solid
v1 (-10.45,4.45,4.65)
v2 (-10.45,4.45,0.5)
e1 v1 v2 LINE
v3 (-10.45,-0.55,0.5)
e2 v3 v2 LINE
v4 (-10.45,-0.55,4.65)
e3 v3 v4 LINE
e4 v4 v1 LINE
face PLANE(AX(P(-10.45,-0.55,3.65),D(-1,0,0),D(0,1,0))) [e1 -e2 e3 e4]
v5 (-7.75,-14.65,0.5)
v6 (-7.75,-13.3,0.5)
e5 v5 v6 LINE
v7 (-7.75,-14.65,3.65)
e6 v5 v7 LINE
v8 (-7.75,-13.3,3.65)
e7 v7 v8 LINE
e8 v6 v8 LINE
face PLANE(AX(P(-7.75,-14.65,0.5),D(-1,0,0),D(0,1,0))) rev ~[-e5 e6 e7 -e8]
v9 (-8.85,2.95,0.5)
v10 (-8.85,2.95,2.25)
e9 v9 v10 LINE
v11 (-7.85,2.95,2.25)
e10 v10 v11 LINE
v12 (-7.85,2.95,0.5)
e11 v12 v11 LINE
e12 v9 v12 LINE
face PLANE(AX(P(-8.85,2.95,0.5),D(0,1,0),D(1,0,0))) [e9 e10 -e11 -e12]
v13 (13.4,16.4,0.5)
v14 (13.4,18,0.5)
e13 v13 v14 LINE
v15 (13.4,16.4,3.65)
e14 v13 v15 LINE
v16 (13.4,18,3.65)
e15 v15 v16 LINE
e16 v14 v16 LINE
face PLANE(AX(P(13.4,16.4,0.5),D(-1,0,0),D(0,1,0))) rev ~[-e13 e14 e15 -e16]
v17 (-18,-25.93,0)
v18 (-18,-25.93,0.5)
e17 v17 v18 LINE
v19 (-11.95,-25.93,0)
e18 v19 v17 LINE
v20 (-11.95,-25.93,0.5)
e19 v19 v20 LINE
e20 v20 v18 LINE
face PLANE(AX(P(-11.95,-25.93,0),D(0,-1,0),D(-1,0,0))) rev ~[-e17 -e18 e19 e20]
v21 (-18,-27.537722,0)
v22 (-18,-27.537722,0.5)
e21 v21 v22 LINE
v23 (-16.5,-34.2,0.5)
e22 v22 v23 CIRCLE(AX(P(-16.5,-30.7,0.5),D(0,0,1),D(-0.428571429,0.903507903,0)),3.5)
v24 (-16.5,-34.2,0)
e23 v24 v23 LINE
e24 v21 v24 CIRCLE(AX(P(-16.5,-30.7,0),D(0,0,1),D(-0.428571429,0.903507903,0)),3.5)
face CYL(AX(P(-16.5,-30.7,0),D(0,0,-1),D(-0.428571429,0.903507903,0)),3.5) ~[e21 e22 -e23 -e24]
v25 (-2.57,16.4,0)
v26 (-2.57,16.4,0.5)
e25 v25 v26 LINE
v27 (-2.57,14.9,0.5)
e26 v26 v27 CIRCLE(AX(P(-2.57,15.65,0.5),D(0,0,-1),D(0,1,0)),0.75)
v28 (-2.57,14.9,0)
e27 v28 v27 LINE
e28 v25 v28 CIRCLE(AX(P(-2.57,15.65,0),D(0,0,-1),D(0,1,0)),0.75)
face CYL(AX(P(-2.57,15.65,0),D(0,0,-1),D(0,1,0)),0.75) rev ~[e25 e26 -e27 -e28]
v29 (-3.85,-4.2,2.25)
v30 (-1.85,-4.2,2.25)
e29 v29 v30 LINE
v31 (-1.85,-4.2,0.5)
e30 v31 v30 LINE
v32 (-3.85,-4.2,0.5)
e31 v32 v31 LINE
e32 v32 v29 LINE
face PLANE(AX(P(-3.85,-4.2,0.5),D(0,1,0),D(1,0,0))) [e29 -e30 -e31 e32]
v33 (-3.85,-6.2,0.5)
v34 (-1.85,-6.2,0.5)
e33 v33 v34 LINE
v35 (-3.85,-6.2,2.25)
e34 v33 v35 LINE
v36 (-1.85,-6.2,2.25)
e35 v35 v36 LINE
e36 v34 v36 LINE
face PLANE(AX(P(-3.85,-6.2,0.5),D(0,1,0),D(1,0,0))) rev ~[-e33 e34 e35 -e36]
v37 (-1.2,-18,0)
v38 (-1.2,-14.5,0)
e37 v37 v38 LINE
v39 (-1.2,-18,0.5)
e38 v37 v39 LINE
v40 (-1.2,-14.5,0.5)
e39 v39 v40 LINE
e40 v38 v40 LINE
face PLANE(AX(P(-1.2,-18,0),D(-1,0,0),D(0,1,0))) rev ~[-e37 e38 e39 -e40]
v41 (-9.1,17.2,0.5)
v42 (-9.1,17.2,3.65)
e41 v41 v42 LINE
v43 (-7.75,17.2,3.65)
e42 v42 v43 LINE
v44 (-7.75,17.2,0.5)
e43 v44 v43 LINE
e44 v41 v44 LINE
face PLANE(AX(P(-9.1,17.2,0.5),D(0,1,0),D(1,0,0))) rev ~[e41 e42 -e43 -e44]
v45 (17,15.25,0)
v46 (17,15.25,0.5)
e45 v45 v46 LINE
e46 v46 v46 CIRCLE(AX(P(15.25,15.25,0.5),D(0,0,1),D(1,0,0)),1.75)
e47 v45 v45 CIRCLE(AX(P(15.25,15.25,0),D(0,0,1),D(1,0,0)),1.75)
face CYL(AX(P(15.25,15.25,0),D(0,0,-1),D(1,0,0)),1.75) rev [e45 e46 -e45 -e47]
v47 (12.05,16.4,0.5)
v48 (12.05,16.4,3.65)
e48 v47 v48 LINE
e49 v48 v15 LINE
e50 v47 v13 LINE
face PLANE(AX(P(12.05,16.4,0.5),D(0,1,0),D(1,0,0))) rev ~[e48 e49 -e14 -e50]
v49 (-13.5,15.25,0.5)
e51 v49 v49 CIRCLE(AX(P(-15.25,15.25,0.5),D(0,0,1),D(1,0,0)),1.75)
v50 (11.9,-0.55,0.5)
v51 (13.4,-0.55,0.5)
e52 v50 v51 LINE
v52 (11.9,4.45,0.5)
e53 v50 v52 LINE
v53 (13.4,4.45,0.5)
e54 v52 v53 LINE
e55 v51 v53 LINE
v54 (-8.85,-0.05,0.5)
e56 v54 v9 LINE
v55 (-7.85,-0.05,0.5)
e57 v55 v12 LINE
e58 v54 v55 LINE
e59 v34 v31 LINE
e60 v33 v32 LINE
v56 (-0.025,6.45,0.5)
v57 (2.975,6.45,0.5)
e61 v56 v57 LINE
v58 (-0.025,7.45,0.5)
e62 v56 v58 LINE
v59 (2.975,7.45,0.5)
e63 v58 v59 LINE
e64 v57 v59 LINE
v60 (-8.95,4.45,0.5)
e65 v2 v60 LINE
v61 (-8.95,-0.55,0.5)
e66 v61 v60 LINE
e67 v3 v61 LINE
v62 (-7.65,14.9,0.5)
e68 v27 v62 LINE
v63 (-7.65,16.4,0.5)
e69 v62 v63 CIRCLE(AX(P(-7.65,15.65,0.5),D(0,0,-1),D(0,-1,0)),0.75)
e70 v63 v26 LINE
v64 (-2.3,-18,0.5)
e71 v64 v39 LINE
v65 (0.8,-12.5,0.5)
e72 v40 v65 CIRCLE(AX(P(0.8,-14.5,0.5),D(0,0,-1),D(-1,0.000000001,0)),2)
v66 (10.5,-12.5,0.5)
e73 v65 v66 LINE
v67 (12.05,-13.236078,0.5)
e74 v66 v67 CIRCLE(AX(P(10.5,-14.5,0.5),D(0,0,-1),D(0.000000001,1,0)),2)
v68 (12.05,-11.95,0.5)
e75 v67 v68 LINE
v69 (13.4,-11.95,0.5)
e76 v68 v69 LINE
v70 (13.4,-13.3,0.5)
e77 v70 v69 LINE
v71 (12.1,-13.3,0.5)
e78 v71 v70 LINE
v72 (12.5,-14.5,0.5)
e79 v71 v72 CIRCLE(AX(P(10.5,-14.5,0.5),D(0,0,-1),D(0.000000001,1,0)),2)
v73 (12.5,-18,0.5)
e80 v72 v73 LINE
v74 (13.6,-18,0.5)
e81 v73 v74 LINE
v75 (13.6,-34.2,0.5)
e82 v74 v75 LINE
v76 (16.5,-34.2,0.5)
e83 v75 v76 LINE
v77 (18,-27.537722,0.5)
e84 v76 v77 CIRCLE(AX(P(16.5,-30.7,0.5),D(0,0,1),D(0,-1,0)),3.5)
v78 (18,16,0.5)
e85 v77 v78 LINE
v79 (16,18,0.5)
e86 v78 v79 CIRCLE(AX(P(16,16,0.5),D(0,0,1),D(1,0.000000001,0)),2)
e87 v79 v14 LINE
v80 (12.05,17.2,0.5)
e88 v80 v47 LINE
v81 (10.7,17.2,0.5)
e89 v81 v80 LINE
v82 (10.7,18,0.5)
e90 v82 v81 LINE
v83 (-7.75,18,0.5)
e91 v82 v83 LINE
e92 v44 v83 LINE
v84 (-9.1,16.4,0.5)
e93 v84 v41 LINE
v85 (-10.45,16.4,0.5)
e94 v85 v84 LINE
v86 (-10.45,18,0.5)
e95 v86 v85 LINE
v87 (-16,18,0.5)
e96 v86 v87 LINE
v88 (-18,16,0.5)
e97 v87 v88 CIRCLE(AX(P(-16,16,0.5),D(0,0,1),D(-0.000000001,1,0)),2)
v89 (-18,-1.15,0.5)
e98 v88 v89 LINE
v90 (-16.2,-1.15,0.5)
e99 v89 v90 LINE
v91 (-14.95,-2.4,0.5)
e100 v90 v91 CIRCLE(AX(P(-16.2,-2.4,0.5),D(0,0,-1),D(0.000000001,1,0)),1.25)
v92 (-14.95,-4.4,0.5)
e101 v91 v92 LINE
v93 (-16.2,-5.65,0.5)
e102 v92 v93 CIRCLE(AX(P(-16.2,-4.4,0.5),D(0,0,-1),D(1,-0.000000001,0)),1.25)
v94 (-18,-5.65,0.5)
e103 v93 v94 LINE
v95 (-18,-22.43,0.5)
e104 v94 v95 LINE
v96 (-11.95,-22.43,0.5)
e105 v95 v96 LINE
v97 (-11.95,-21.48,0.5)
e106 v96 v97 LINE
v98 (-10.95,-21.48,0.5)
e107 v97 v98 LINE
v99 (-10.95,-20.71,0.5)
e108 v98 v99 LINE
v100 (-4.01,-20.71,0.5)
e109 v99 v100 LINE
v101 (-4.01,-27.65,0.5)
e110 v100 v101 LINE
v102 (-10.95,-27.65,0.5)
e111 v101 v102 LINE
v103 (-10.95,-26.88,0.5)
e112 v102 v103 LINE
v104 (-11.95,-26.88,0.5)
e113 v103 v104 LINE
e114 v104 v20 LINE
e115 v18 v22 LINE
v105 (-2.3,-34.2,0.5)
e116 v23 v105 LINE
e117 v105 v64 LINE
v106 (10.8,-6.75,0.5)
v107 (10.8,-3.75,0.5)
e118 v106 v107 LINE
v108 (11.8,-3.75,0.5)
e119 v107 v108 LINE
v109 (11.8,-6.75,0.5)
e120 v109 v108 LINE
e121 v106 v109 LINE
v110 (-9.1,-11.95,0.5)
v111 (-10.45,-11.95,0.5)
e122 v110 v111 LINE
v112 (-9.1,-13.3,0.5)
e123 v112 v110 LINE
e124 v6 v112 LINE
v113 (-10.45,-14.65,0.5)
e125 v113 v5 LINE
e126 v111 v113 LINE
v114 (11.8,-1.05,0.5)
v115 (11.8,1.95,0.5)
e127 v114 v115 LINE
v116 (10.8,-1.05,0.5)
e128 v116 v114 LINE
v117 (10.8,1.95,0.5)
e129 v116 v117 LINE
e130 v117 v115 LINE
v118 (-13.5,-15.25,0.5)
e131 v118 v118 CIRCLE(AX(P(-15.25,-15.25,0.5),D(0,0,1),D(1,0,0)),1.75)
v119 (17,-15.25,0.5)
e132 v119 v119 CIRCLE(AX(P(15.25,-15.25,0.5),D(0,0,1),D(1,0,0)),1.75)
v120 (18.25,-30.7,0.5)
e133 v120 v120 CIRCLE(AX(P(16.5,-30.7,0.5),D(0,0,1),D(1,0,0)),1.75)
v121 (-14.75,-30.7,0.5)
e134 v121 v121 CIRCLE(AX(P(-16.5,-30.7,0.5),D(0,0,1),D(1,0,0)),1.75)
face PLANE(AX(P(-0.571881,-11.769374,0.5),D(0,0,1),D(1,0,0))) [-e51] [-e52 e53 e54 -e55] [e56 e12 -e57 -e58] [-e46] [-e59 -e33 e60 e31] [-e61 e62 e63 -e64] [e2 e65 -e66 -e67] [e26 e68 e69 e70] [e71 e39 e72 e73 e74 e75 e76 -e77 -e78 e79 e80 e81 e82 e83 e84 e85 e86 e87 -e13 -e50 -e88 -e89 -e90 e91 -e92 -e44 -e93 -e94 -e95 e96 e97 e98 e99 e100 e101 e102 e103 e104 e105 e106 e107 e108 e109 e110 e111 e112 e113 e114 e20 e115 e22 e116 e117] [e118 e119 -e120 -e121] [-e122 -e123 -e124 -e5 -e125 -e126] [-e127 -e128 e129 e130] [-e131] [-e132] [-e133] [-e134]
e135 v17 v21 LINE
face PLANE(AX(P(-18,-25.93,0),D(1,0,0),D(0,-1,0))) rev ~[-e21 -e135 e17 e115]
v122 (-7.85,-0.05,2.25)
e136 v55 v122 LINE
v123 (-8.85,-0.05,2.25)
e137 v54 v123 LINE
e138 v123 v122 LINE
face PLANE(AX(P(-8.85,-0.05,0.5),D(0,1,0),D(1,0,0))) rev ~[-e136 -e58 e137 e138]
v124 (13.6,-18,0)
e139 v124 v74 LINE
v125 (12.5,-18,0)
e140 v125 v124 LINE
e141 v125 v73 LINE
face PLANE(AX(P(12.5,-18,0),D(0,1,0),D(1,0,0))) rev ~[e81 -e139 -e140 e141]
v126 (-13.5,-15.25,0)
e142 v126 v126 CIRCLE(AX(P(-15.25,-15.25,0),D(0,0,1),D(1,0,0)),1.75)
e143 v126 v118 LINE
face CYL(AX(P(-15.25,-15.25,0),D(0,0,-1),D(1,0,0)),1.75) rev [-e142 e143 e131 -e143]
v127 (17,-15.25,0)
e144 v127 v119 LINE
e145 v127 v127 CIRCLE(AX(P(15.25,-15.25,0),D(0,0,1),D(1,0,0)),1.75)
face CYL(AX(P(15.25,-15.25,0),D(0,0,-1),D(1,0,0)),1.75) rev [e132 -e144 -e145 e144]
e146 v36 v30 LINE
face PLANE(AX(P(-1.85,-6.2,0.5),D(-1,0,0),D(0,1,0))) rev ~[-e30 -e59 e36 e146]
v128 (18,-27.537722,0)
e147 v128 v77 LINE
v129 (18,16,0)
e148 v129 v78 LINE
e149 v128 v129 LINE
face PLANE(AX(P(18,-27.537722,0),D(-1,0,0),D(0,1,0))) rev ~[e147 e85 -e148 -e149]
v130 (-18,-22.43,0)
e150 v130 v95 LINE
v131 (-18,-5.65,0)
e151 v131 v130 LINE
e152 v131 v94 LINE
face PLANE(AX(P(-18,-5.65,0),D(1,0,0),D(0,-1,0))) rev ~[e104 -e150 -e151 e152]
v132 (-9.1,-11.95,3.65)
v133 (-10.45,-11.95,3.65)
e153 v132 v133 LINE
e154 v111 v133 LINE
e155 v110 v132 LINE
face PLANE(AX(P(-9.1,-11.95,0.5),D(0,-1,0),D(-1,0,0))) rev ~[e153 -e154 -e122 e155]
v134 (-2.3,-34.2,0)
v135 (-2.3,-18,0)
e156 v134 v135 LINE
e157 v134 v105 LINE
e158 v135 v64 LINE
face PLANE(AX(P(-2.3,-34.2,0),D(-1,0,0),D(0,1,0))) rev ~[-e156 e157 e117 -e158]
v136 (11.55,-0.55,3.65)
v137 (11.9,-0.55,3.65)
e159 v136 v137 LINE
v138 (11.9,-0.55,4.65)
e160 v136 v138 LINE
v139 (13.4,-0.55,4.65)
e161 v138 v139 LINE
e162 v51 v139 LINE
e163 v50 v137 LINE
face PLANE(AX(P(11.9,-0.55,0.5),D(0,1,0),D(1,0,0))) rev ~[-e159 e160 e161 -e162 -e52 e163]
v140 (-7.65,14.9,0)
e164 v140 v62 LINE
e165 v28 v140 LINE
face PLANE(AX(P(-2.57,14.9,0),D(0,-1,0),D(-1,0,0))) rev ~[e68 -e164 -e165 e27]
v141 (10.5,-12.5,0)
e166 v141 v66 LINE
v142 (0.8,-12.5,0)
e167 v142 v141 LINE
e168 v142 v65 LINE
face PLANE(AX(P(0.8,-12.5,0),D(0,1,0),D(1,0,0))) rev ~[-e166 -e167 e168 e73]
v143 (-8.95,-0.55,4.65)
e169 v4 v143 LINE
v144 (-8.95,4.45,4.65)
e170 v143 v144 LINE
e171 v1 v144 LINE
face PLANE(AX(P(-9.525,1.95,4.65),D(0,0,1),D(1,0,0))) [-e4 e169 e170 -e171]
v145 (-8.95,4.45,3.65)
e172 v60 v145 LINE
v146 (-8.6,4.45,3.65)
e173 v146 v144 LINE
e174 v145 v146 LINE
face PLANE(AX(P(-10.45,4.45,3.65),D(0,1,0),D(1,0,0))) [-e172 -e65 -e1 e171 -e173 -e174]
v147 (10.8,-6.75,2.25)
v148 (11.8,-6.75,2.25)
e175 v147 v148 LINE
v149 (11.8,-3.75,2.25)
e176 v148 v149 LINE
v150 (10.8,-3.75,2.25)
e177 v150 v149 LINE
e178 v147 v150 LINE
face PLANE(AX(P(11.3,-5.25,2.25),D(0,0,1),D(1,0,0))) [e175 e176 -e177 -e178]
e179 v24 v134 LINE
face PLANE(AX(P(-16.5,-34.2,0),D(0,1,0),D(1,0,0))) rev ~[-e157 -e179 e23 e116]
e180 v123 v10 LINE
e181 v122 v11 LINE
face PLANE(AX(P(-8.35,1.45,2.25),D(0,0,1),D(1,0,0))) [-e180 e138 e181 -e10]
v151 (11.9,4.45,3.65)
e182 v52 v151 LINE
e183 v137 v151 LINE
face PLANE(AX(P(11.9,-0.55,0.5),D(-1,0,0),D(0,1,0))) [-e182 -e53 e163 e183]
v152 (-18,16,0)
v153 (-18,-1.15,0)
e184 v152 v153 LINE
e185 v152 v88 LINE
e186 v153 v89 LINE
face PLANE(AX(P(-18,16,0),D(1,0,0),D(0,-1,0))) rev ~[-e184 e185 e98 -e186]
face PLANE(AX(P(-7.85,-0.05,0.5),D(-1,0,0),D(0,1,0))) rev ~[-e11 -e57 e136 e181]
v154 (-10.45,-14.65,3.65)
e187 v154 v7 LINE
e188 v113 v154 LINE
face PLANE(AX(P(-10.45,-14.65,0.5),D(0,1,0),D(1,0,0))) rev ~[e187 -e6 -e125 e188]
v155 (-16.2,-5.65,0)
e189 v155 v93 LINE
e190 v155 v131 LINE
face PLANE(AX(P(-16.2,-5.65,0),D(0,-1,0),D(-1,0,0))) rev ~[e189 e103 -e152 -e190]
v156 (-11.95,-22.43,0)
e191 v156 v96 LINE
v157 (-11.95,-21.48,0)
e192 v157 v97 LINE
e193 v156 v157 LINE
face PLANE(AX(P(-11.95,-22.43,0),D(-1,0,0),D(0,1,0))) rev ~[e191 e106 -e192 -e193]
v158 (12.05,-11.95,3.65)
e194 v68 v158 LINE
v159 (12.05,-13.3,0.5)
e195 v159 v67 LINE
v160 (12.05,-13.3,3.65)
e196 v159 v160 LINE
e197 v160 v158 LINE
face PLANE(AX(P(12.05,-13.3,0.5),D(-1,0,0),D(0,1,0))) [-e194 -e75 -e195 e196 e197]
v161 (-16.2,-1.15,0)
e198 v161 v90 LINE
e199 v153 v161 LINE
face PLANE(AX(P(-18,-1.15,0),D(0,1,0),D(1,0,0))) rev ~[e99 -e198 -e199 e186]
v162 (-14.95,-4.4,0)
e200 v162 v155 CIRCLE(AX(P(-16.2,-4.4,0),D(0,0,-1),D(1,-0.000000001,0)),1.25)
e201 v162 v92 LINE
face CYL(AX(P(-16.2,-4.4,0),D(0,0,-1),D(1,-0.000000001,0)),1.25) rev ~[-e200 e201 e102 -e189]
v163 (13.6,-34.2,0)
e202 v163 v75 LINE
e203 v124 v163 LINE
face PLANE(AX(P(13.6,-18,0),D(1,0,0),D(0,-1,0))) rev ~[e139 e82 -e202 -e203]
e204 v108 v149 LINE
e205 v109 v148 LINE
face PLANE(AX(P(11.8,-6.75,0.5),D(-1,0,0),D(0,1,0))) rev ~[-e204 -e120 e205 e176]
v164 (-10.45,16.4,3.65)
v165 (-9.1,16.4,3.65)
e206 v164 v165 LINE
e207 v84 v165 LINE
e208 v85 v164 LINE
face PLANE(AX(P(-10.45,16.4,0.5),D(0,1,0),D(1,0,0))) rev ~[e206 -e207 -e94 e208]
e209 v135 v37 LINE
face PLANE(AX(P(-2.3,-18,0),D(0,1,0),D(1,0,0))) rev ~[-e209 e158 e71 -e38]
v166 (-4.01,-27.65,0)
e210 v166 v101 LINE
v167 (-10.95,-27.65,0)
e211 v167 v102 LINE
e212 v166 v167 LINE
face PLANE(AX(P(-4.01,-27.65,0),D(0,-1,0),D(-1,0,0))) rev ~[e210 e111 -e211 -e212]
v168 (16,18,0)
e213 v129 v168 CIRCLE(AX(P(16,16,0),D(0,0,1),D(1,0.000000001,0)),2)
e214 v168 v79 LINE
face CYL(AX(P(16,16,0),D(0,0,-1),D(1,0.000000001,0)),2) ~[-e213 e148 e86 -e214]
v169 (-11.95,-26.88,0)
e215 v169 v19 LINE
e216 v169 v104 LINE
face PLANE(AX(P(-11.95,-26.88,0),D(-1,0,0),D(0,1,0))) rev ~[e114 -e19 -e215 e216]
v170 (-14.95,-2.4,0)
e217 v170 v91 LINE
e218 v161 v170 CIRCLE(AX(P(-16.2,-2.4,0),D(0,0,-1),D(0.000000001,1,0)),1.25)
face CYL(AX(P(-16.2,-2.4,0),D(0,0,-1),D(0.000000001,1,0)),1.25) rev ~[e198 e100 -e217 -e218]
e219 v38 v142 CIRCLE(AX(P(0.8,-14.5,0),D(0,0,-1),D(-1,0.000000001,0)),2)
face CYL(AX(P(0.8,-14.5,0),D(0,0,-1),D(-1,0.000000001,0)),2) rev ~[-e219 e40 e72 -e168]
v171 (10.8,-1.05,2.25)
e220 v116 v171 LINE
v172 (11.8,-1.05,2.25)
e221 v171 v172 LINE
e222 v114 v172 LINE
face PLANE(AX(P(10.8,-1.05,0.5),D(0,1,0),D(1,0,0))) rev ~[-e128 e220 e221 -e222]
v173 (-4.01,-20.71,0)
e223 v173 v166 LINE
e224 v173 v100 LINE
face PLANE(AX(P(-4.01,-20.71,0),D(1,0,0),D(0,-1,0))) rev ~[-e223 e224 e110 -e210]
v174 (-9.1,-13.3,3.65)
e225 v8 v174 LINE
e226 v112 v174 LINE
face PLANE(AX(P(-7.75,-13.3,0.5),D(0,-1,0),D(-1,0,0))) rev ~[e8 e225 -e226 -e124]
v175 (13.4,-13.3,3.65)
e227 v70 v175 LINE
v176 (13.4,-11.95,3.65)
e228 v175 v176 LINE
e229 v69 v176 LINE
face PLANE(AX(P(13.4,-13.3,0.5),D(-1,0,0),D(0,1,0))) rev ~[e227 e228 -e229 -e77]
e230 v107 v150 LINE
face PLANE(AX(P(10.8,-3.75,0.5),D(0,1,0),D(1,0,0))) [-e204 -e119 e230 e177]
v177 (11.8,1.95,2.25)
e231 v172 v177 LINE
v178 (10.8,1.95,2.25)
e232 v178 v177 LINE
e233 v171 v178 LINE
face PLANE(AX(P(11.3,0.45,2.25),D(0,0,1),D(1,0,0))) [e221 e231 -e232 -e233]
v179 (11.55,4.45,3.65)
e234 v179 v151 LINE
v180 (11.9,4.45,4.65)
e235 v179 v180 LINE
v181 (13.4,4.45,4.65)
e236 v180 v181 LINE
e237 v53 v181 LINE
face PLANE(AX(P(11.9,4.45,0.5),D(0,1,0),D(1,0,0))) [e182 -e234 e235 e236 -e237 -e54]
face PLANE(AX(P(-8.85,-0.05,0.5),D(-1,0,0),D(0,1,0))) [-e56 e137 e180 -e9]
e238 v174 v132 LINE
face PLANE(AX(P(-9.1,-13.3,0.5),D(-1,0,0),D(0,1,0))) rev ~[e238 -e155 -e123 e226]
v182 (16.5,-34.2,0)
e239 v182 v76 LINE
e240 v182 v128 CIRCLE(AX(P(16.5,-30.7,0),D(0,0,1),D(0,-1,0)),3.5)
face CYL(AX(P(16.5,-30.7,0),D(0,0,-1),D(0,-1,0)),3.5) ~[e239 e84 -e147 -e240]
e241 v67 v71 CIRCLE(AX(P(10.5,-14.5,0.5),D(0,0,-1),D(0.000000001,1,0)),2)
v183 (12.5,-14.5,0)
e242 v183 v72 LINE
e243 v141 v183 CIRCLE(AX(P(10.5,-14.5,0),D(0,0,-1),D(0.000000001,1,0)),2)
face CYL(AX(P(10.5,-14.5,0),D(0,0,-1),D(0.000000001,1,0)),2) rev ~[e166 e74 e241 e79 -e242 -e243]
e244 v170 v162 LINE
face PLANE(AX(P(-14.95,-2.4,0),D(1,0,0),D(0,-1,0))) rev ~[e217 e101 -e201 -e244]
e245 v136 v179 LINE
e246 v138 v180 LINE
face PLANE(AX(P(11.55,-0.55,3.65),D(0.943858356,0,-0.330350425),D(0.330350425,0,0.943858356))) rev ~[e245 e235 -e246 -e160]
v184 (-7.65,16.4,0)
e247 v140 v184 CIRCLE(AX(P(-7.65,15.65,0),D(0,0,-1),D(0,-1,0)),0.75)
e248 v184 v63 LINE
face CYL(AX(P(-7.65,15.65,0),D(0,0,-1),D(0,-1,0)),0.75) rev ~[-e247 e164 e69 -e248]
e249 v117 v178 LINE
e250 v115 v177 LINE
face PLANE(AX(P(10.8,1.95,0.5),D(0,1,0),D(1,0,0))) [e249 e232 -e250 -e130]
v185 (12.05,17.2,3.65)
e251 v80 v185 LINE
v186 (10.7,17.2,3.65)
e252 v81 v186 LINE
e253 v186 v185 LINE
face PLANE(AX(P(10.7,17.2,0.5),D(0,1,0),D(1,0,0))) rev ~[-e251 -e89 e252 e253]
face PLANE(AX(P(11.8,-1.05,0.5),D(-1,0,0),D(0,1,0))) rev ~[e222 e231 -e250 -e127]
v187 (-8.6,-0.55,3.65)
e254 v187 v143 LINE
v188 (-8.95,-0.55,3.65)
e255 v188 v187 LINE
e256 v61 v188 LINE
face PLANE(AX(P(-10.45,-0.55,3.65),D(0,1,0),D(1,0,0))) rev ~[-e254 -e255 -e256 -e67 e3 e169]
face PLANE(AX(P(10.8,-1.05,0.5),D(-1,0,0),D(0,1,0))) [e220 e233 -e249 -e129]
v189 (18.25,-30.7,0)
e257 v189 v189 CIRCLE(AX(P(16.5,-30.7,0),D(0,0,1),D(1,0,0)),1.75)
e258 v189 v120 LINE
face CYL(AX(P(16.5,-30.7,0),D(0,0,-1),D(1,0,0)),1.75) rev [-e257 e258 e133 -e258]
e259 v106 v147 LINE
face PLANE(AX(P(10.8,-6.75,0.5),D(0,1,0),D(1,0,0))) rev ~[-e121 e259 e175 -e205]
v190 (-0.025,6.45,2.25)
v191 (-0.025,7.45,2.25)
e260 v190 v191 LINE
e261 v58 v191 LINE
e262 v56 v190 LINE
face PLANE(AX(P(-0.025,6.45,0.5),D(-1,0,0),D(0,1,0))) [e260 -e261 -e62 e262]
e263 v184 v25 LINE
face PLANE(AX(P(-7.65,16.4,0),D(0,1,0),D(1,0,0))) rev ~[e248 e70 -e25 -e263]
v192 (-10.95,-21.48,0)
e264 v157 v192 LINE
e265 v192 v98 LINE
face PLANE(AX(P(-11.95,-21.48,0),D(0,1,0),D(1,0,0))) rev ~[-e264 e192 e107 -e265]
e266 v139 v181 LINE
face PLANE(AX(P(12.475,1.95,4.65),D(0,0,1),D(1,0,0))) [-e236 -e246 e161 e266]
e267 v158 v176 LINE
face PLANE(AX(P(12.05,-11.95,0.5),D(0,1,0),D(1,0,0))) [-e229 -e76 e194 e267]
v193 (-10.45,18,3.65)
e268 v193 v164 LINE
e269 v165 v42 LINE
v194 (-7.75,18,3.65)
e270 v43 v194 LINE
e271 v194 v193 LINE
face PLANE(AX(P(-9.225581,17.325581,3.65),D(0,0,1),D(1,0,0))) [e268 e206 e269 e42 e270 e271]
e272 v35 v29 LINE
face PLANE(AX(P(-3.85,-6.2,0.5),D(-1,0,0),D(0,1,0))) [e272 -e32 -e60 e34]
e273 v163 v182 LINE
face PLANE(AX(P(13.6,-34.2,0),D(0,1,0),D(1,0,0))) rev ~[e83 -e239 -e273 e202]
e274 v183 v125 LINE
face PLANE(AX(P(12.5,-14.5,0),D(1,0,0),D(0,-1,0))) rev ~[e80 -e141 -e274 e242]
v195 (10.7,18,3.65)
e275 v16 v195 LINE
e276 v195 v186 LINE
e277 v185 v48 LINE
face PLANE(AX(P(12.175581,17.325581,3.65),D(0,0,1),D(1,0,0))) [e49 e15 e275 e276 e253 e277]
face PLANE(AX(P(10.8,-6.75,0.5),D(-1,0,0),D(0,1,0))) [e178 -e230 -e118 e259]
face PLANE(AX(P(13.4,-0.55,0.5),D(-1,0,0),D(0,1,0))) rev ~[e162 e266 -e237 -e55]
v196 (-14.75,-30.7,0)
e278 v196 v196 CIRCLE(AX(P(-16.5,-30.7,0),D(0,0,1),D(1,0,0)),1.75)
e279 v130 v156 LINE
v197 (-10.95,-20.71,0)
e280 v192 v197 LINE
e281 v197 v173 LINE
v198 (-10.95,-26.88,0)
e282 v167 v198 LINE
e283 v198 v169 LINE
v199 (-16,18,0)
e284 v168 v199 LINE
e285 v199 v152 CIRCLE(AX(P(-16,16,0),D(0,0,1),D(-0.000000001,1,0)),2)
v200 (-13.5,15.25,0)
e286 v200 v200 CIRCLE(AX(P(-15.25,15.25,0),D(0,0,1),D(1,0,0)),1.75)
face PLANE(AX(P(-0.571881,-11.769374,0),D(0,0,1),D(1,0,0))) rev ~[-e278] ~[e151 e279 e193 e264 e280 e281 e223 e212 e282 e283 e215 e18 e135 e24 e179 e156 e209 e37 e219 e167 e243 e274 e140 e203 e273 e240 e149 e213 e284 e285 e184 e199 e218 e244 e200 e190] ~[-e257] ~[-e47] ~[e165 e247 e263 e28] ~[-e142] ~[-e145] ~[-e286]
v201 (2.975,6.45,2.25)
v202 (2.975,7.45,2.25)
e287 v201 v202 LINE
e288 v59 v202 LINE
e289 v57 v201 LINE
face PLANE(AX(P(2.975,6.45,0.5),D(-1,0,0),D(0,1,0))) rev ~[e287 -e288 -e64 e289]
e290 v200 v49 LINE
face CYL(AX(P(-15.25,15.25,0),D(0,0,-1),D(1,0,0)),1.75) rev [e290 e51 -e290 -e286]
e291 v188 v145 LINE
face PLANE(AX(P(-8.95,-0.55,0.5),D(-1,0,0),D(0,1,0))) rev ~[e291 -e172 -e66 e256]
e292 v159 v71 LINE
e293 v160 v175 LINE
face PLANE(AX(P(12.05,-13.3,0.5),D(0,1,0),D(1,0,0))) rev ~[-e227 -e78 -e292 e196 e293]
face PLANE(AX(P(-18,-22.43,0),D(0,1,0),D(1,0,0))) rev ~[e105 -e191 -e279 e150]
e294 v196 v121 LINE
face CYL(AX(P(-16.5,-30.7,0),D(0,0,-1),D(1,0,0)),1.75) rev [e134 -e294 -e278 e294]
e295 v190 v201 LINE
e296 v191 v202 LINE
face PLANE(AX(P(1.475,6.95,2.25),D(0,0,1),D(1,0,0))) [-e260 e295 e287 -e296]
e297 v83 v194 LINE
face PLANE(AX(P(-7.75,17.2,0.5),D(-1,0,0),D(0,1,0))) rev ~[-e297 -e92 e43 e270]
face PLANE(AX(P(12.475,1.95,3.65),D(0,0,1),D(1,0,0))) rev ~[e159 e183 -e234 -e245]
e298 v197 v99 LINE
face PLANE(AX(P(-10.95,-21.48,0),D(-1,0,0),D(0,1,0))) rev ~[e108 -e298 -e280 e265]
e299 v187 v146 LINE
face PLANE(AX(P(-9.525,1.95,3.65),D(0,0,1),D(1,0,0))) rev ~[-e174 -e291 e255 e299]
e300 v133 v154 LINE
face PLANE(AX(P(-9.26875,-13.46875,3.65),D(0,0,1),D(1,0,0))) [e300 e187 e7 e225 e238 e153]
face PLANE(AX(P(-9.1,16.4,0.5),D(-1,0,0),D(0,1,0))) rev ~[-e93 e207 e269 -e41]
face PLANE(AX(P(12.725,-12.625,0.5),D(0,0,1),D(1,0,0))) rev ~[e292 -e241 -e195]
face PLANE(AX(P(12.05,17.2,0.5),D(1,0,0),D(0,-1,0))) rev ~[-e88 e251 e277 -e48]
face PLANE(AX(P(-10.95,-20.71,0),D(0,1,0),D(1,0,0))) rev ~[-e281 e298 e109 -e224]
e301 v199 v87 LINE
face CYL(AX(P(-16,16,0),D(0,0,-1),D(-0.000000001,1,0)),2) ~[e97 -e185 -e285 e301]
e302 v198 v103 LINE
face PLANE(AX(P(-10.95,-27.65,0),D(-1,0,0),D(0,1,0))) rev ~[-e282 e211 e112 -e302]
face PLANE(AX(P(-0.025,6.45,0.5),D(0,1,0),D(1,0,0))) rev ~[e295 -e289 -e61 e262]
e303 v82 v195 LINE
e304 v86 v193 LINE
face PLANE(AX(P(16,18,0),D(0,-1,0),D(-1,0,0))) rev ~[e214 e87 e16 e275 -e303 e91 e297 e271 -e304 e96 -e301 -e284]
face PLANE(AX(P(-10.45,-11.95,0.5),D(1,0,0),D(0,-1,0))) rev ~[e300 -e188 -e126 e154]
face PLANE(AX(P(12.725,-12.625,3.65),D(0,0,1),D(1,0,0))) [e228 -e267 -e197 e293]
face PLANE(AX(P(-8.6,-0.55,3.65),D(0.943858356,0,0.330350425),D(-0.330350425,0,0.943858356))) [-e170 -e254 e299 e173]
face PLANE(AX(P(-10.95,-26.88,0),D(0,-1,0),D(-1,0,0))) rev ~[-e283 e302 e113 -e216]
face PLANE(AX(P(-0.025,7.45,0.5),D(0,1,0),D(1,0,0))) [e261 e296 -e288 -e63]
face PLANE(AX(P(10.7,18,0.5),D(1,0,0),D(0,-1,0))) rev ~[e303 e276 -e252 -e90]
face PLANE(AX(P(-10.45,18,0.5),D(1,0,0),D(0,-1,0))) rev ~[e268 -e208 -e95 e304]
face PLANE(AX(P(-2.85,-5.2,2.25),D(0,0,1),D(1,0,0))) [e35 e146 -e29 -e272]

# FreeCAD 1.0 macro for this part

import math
import FreeCAD as App
import Part
import Sketcher
from FreeCAD import Vector
Q = App.Units.Quantity


def add_polygon(sketch, points):
    """Adds a closed chain of lines whose ends are joined by coincident constraints."""
    first, n = sketch.GeometryCount, len(points)
    for a, b in zip(points, points[1:] + points[:1]):
        sketch.addGeometry(Part.LineSegment(App.Vector(*a, 0), App.Vector(*b, 0)), False)
    for i in range(n):
        sketch.addConstraint(Sketcher.Constraint("Coincident", first + i, 2, first + (i + 1) % n, 1))

doc = App.newDocument("Part")
body = doc.addObject("PartDesign::Body", "Body")

# Sketch on XY plane
sketch1 = body.newObject("Sketcher::SketchObject", "Sketch")
sketch1.AttachmentSupport = (doc.getObject("XY_Plane"), [""])
sketch1.MapMode = "FlatFace"
sketch1.addGeometry([
    Part.LineSegment(Vector(18, -27.537722, 0), Vector(18, 16, 0)),  # 0
    Part.ArcOfCircle(Part.Circle(Vector(16, 16, 0), Vector(0, 0, 1), 2), math.radians(0), math.radians(90)),  # 1
    Part.LineSegment(Vector(16, 18, 0), Vector(-16, 18, 0)),  # 2
    Part.ArcOfCircle(Part.Circle(Vector(-16, 16, 0), Vector(0, 0, 1), 2), math.radians(90), math.radians(180)),  # 3
    Part.LineSegment(Vector(-18, 16, 0), Vector(-18, -1.15, 0)),  # 4
    Part.LineSegment(Vector(-18, -1.15, 0), Vector(-16.2, -1.15, 0)),  # 5
    Part.ArcOfCircle(Part.Circle(Vector(-16.2, -2.4, 0), Vector(0, 0, 1), 1.25), math.radians(0), math.radians(90)),  # 6
    Part.LineSegment(Vector(-14.95, -2.4, 0), Vector(-14.95, -4.4, 0)),  # 7
    Part.ArcOfCircle(Part.Circle(Vector(-16.2, -4.4, 0), Vector(0, 0, 1), 1.25), math.radians(-90), math.radians(0)),  # 8
    Part.LineSegment(Vector(-16.2, -5.65, 0), Vector(-18, -5.65, 0)),  # 9
    Part.LineSegment(Vector(-18, -5.65, 0), Vector(-18, -22.43, 0)),  # 10
    Part.LineSegment(Vector(-18, -22.43, 0), Vector(-11.95, -22.43, 0)),  # 11
    Part.LineSegment(Vector(-11.95, -22.43, 0), Vector(-11.95, -21.48, 0)),  # 12
    Part.LineSegment(Vector(-11.95, -21.48, 0), Vector(-10.95, -21.48, 0)),  # 13
    Part.LineSegment(Vector(-10.95, -21.48, 0), Vector(-10.95, -20.71, 0)),  # 14
    Part.LineSegment(Vector(-10.95, -20.71, 0), Vector(-4.01, -20.71, 0)),  # 15
    Part.LineSegment(Vector(-4.01, -20.71, 0), Vector(-4.01, -27.65, 0)),  # 16
    Part.LineSegment(Vector(-4.01, -27.65, 0), Vector(-10.95, -27.65, 0)),  # 17
    Part.LineSegment(Vector(-10.95, -27.65, 0), Vector(-10.95, -26.88, 0)),  # 18
    Part.LineSegment(Vector(-10.95, -26.88, 0), Vector(-11.95, -26.88, 0)),  # 19
    Part.LineSegment(Vector(-11.95, -26.88, 0), Vector(-11.95, -25.93, 0)),  # 20
    Part.LineSegment(Vector(-11.95, -25.93, 0), Vector(-18, -25.93, 0)),  # 21
    Part.LineSegment(Vector(-18, -25.93, 0), Vector(-18, -27.537722, 0)),  # 22
    Part.ArcOfCircle(Part.Circle(Vector(-16.5, -30.7, 0), Vector(0, 0, 1), 3.5), math.radians(115.376934), math.radians(270)),  # 23
    Part.LineSegment(Vector(-16.5, -34.2, 0), Vector(-2.3, -34.2, 0)),  # 24
    Part.LineSegment(Vector(-2.3, -34.2, 0), Vector(-2.3, -18, 0)),  # 25
    Part.LineSegment(Vector(-2.3, -18, 0), Vector(-1.2, -18, 0)),  # 26
    Part.LineSegment(Vector(-1.2, -18, 0), Vector(-1.2, -14.5, 0)),  # 27
    Part.ArcOfCircle(Part.Circle(Vector(0.8, -14.5, 0), Vector(0, 0, 1), 2), math.radians(90), math.radians(180)),  # 28
    Part.LineSegment(Vector(0.8, -12.5, 0), Vector(10.5, -12.5, 0)),  # 29
    Part.ArcOfCircle(Part.Circle(Vector(10.5, -14.5, 0), Vector(0, 0, 1), 2), math.radians(0), math.radians(90)),  # 30
    Part.LineSegment(Vector(12.5, -14.5, 0), Vector(12.5, -18, 0)),  # 31
    Part.LineSegment(Vector(12.5, -18, 0), Vector(13.6, -18, 0)),  # 32
    Part.LineSegment(Vector(13.6, -18, 0), Vector(13.6, -34.2, 0)),  # 33
    Part.LineSegment(Vector(13.6, -34.2, 0), Vector(16.5, -34.2, 0)),  # 34
    Part.ArcOfCircle(Part.Circle(Vector(16.5, -30.7, 0), Vector(0, 0, 1), 3.5), math.radians(-90), math.radians(64.623066)),  # 35
    Part.Circle(Vector(-16.5, -30.7, 0), Vector(0, 0, 1), 1.75),  # 36
    Part.Circle(Vector(-15.25, -15.25, 0), Vector(0, 0, 1), 1.75),  # 37
    Part.Circle(Vector(16.5, -30.7, 0), Vector(0, 0, 1), 1.75),  # 38
    Part.Circle(Vector(15.25, -15.25, 0), Vector(0, 0, 1), 1.75),  # 39
    Part.Circle(Vector(-15.25, 15.25, 0), Vector(0, 0, 1), 1.75),  # 40
    Part.LineSegment(Vector(-2.57, 14.9, 0), Vector(-7.65, 14.9, 0)),  # 41
    Part.ArcOfCircle(Part.Circle(Vector(-7.65, 15.65, 0), Vector(0, 0, 1), 0.75), math.radians(90), math.radians(270)),  # 42
    Part.LineSegment(Vector(-7.65, 16.4, 0), Vector(-2.57, 16.4, 0)),  # 43
    Part.ArcOfCircle(Part.Circle(Vector(-2.57, 15.65, 0), Vector(0, 0, 1), 0.75), math.radians(-90), math.radians(90)),  # 44
    Part.Circle(Vector(15.25, 15.25, 0), Vector(0, 0, 1), 1.75),  # 45
], False)
sketch1.addConstraint([
    Sketcher.Constraint("Tangent", 0, 2, 1, 1),
    Sketcher.Constraint("Tangent", 1, 2, 2, 1),
    Sketcher.Constraint("Tangent", 2, 2, 3, 1),
    Sketcher.Constraint("Tangent", 3, 2, 4, 1),
    Sketcher.Constraint("Coincident", 4, 2, 5, 1),
    Sketcher.Constraint("Tangent", 5, 2, 6, 2),
    Sketcher.Constraint("Tangent", 6, 1, 7, 1),
    Sketcher.Constraint("Tangent", 7, 2, 8, 2),
    Sketcher.Constraint("Tangent", 8, 1, 9, 1),
    Sketcher.Constraint("Coincident", 9, 2, 10, 1),
    Sketcher.Constraint("Coincident", 10, 2, 11, 1),
    Sketcher.Constraint("Coincident", 11, 2, 12, 1),
    Sketcher.Constraint("Coincident", 12, 2, 13, 1),
    Sketcher.Constraint("Coincident", 13, 2, 14, 1),
    Sketcher.Constraint("Coincident", 14, 2, 15, 1),
    Sketcher.Constraint("Coincident", 15, 2, 16, 1),
    Sketcher.Constraint("Coincident", 16, 2, 17, 1),
    Sketcher.Constraint("Coincident", 17, 2, 18, 1),
    Sketcher.Constraint("Coincident", 18, 2, 19, 1),
    Sketcher.Constraint("Coincident", 19, 2, 20, 1),
    Sketcher.Constraint("Coincident", 20, 2, 21, 1),
    Sketcher.Constraint("Coincident", 21, 2, 22, 1),
    Sketcher.Constraint("Coincident", 22, 2, 23, 1),
    Sketcher.Constraint("Tangent", 23, 2, 24, 1),
    Sketcher.Constraint("Coincident", 24, 2, 25, 1),
    Sketcher.Constraint("Coincident", 25, 2, 26, 1),
    Sketcher.Constraint("Coincident", 26, 2, 27, 1),
    Sketcher.Constraint("Tangent", 27, 2, 28, 2),
    Sketcher.Constraint("Tangent", 28, 1, 29, 1),
    Sketcher.Constraint("Tangent", 29, 2, 30, 2),
    Sketcher.Constraint("Tangent", 30, 1, 31, 1),
    Sketcher.Constraint("Coincident", 31, 2, 32, 1),
    Sketcher.Constraint("Coincident", 32, 2, 33, 1),
    Sketcher.Constraint("Coincident", 33, 2, 34, 1),
    Sketcher.Constraint("Tangent", 34, 2, 35, 1),
    Sketcher.Constraint("Coincident", 35, 2, 0, 1),
    Sketcher.Constraint("Tangent", 41, 2, 42, 2),
    Sketcher.Constraint("Tangent", 42, 1, 43, 1),
    Sketcher.Constraint("Tangent", 43, 2, 44, 2),
    Sketcher.Constraint("Tangent", 44, 1, 41, 1),
    Sketcher.Constraint("Vertical", 0),
    Sketcher.Constraint("Horizontal", 2),
    Sketcher.Constraint("Vertical", 4),
    Sketcher.Constraint("Horizontal", 5),
    Sketcher.Constraint("Vertical", 7),
    Sketcher.Constraint("Horizontal", 9),
    Sketcher.Constraint("Vertical", 10),
    Sketcher.Constraint("Horizontal", 11),
    Sketcher.Constraint("Vertical", 12),
    Sketcher.Constraint("Horizontal", 13),
    Sketcher.Constraint("Vertical", 14),
    Sketcher.Constraint("Horizontal", 15),
    Sketcher.Constraint("Vertical", 16),
    Sketcher.Constraint("Horizontal", 17),
    Sketcher.Constraint("Vertical", 18),
    Sketcher.Constraint("Horizontal", 19),
    Sketcher.Constraint("Vertical", 20),
    Sketcher.Constraint("Horizontal", 21),
    Sketcher.Constraint("Vertical", 22),
    Sketcher.Constraint("Horizontal", 24),
    Sketcher.Constraint("Vertical", 25),
    Sketcher.Constraint("Horizontal", 26),
    Sketcher.Constraint("Vertical", 27),
    Sketcher.Constraint("Horizontal", 29),
    Sketcher.Constraint("Vertical", 31),
    Sketcher.Constraint("Horizontal", 32),
    Sketcher.Constraint("Vertical", 33),
    Sketcher.Constraint("Horizontal", 34),
    Sketcher.Constraint("Horizontal", 41),
    Sketcher.Constraint("Horizontal", 43),
    Sketcher.Constraint("Coincident", 36, 3, 23, 3),
    Sketcher.Constraint("Coincident", 38, 3, 35, 3),
    Sketcher.Constraint("Equal", 1, 3),
    Sketcher.Constraint("Equal", 6, 8),
    Sketcher.Constraint("Equal", 3, 28),
    Sketcher.Constraint("Equal", 28, 30),
    Sketcher.Constraint("Equal", 23, 35),
    Sketcher.Constraint("Equal", 36, 37),
    Sketcher.Constraint("Equal", 37, 38),
    Sketcher.Constraint("Equal", 38, 39),
    Sketcher.Constraint("Equal", 39, 40),
    Sketcher.Constraint("Equal", 40, 45),
    Sketcher.Constraint("Symmetric", 39, 3, 40, 3, -1, 1),
    Sketcher.Constraint("Symmetric", 37, 3, 45, 3, -1, 1),
    Sketcher.Constraint("Symmetric", 23, 3, 35, 3, -2),
    Sketcher.Constraint("Symmetric", 37, 3, 39, 3, -2),
    Sketcher.Constraint("Horizontal", 26, 2, 31, 2),
    Sketcher.Constraint("Horizontal", 22, 2, 35, 2),
    Sketcher.Constraint("Vertical", 4, 2, 9, 2),
    Sketcher.Constraint("Vertical", 14, 2, 17, 2),
    Sketcher.Constraint("Vertical", 12, 2, 19, 2),
    Sketcher.Constraint("Vertical", 10, 2, 21, 2),
    Sketcher.Constraint("Equal", 26, 32),
    Sketcher.Constraint("Equal", 17, 16),
    Sketcher.Constraint("Equal", 14, 18),
    Sketcher.Constraint("Equal", 12, 20),
    Sketcher.Constraint("Radius", 1, Q("2 mm")),
    Sketcher.Constraint("Diameter", 36, Q("3.5 mm")),
    Sketcher.Constraint("Radius", 23, Q("3.5 mm")),
    Sketcher.Constraint("DistanceX", 2, 2, 2, 1, Q("32 mm")),
    Sketcher.Constraint("DistanceX", 13, 1, 13, 2, Q("1 mm")),
    Sketcher.Constraint("DistanceY", 7, 2, 7, 1, Q("2 mm")),
    Sketcher.Constraint("Radius", 6, Q("1.25 mm")),
    Sketcher.Constraint("Radius", 42, Q("0.75 mm")),
    Sketcher.Constraint("DistanceX", 5, 1, 5, 2, Q("1.8 mm")),
    Sketcher.Constraint("DistanceX", 24, 1, 24, 2, Q("14.2 mm")),
    Sketcher.Constraint("DistanceX", 26, 1, 26, 2, Q("1.1 mm")),
    Sketcher.Constraint("DistanceX", 29, 1, 29, 2, Q("9.7 mm")),
    Sketcher.Constraint("DistanceX", 34, 1, 34, 2, Q("2.9 mm")),
    Sketcher.Constraint("DistanceY", 25, 1, 25, 2, Q("16.2 mm")),
    Sketcher.Constraint("DistanceY", 27, 1, 27, 2, Q("3.5 mm")),
    Sketcher.Constraint("DistanceY", -1, 1, 1, 3, Q("16 mm")),
    Sketcher.Constraint("DistanceY", 25, 2, -1, 1, Q("18 mm")),
    Sketcher.Constraint("DistanceX", 11, 1, 11, 2, Q("6.05 mm")),
    Sketcher.Constraint("DistanceX", 15, 1, 15, 2, Q("6.94 mm")),
    Sketcher.Constraint("DistanceX", 41, 2, 41, 1, Q("5.08 mm")),
    Sketcher.Constraint("DistanceY", 4, 2, 4, 1, Q("17.15 mm")),
    Sketcher.Constraint("DistanceY", 10, 2, 10, 1, Q("16.78 mm")),
    Sketcher.Constraint("DistanceY", 12, 1, 12, 2, Q("0.95 mm")),
    Sketcher.Constraint("DistanceY", 14, 1, 14, 2, Q("0.77 mm")),
    Sketcher.Constraint("DistanceY", -1, 1, 41, 2, Q("14.9 mm")),
    Sketcher.Constraint("DistanceX", 37, 3, 39, 3, Q("30.5 mm")),
    Sketcher.Constraint("DistanceY", 37, 3, 40, 3, Q("30.5 mm")),
    Sketcher.Constraint("DistanceX", 40, 3, 42, 3, Q("7.6 mm")),
])
pad1 = body.newObject("PartDesign::Pad", "Pad")
pad1.Profile = sketch1
pad1.Length = 0.5

# Sketch on XY plane
sketch2 = body.newObject("Sketcher::SketchObject", "Sketch001")
sketch2.AttachmentSupport = (doc.getObject("XY_Plane"), [""])
sketch2.MapMode = "FlatFace"
sketch2.AttachmentOffset = App.Placement(Vector(0, 0, 0.5), App.Rotation())
add_polygon(sketch2, [(-0.025, 7.45), (-0.025, 6.45), (2.975, 6.45), (2.975, 7.45)])  # lines 0-3
add_polygon(sketch2, [(-8.85, 2.95), (-8.85, -0.05), (-7.85, -0.05), (-7.85, 2.95)])  # lines 4-7
add_polygon(sketch2, [(-3.85, -4.2), (-3.85, -6.2), (-1.85, -6.2), (-1.85, -4.2)])  # lines 8-11
add_polygon(sketch2, [(10.8, 1.95), (10.8, -1.05), (11.8, -1.05), (11.8, 1.95)])  # lines 12-15
add_polygon(sketch2, [(10.8, -3.75), (10.8, -6.75), (11.8, -6.75), (11.8, -3.75)])  # lines 16-19
sketch2.addConstraint([
    Sketcher.Constraint("Vertical", 0),
    Sketcher.Constraint("Horizontal", 1),
    Sketcher.Constraint("Vertical", 2),
    Sketcher.Constraint("Horizontal", 3),
    Sketcher.Constraint("Vertical", 4),
    Sketcher.Constraint("Horizontal", 5),
    Sketcher.Constraint("Vertical", 6),
    Sketcher.Constraint("Horizontal", 7),
    Sketcher.Constraint("Vertical", 8),
    Sketcher.Constraint("Horizontal", 9),
    Sketcher.Constraint("Vertical", 10),
    Sketcher.Constraint("Horizontal", 11),
    Sketcher.Constraint("Vertical", 12),
    Sketcher.Constraint("Horizontal", 13),
    Sketcher.Constraint("Vertical", 14),
    Sketcher.Constraint("Horizontal", 15),
    Sketcher.Constraint("Vertical", 16),
    Sketcher.Constraint("Horizontal", 17),
    Sketcher.Constraint("Vertical", 18),
    Sketcher.Constraint("Horizontal", 19),
    Sketcher.Constraint("Vertical", 15, 2, 16, 2),
    Sketcher.Constraint("Vertical", 14, 2, 17, 2),
    Sketcher.Constraint("Equal", 7, 13),
    Sketcher.Constraint("Equal", 19, 0),
    Sketcher.Constraint("Equal", 3, 4),
    Sketcher.Constraint("Equal", 11, 8),
    Sketcher.Constraint("Equal", 6, 12),
    Sketcher.Constraint("Equal", 14, 16),
    Sketcher.Constraint("DistanceX", 1, 1, 1, 2, Q("3 mm")),
    Sketcher.Constraint("DistanceX", 5, 1, 5, 2, Q("1 mm")),
    Sketcher.Constraint("DistanceX", 9, 1, 9, 2, Q("2 mm")),
    Sketcher.Constraint("DistanceX", 5, 2, 8, 2, Q("4 mm")),
    Sketcher.Constraint("DistanceY", 8, 2, -1, 1, Q("6.2 mm")),
    Sketcher.Constraint("DistanceX", -1, 1, 12, 2, Q("10.8 mm")),
    Sketcher.Constraint("DistanceY", 4, 2, 0, 2, Q("6.5 mm")),
    Sketcher.Constraint("DistanceY", 12, 2, 1, 2, Q("7.5 mm")),
    Sketcher.Constraint("DistanceY", 16, 2, 12, 2, Q("5.7 mm")),
    Sketcher.Constraint("DistanceY", -1, 1, 0, 2, Q("6.45 mm")),
    Sketcher.Constraint("DistanceX", 4, 2, -1, 1, Q("8.85 mm")),
    Sketcher.Constraint("DistanceX", 0, 2, -1, 1, Q("0.025 mm")),
])
pad2 = body.newObject("PartDesign::Pad", "Pad001")
pad2.Profile = sketch2
pad2.Length = 1.75

# Sketch on XY plane
sketch3 = body.newObject("Sketcher::SketchObject", "Sketch002")
sketch3.AttachmentSupport = (doc.getObject("XY_Plane"), [""])
sketch3.MapMode = "FlatFace"
sketch3.AttachmentOffset = App.Placement(Vector(0, 0, 0.5), App.Rotation())
add_polygon(sketch3, [(-10.45, 4.45), (-10.45, -0.55), (-8.95, -0.55), (-8.95, 4.45)])  # lines 0-3
add_polygon(sketch3, [(11.9, 4.45), (11.9, -0.55), (13.4, -0.55), (13.4, 4.45)])  # lines 4-7
sketch3.addConstraint([
    Sketcher.Constraint("Vertical", 0),
    Sketcher.Constraint("Horizontal", 1),
    Sketcher.Constraint("Vertical", 2),
    Sketcher.Constraint("Horizontal", 3),
    Sketcher.Constraint("Vertical", 4),
    Sketcher.Constraint("Horizontal", 5),
    Sketcher.Constraint("Vertical", 6),
    Sketcher.Constraint("Horizontal", 7),
    Sketcher.Constraint("Horizontal", 1, 2, 4, 2),
    Sketcher.Constraint("Horizontal", 3, 2, 6, 2),
    Sketcher.Constraint("Equal", 3, 5),
    Sketcher.Constraint("DistanceY", 0, 2, 0, 1, Q("5 mm")),
    Sketcher.Constraint("DistanceX", 1, 1, 1, 2, Q("1.5 mm")),
    Sketcher.Constraint("DistanceX", -1, 1, 4, 2, Q("11.9 mm")),
    Sketcher.Constraint("DistanceX", 0, 2, -1, 1, Q("10.45 mm")),
    Sketcher.Constraint("DistanceY", 0, 2, -1, 1, Q("0.55 mm")),
])
pad3 = body.newObject("PartDesign::Pad", "Pad002")
pad3.Profile = sketch3
pad3.Length = 3.15

# Sketch on XY plane
sketch4 = body.newObject("Sketcher::SketchObject", "Sketch003")
sketch4.AttachmentSupport = (doc.getObject("XY_Plane"), [""])
sketch4.MapMode = "FlatFace"
sketch4.AttachmentOffset = App.Placement(Vector(0, 0, 3.65), App.Rotation())
add_polygon(sketch4, [(-10.45, 4.45), (-10.45, -0.55), (-8.6, -0.55), (-8.6, 4.45)])  # lines 0-3
add_polygon(sketch4, [(11.55, 4.45), (11.55, -0.55), (13.4, -0.55), (13.4, 4.45)])  # lines 4-7
sketch4.addConstraint([
    Sketcher.Constraint("Vertical", 0),
    Sketcher.Constraint("Horizontal", 1),
    Sketcher.Constraint("Vertical", 2),
    Sketcher.Constraint("Horizontal", 3),
    Sketcher.Constraint("Vertical", 4),
    Sketcher.Constraint("Horizontal", 5),
    Sketcher.Constraint("Vertical", 6),
    Sketcher.Constraint("Horizontal", 7),
    Sketcher.Constraint("Horizontal", 1, 2, 4, 2),
    Sketcher.Constraint("Horizontal", 3, 2, 6, 2),
    Sketcher.Constraint("Equal", 3, 5),
    Sketcher.Constraint("DistanceY", 0, 2, 0, 1, Q("5 mm")),
    Sketcher.Constraint("DistanceX", 0, 2, 4, 2, Q("22 mm")),
    Sketcher.Constraint("DistanceX", 1, 1, 1, 2, Q("1.85 mm")),
    Sketcher.Constraint("DistanceX", 1, 2, -1, 1, Q("8.6 mm")),
    Sketcher.Constraint("DistanceY", 0, 2, -1, 1, Q("0.55 mm")),
])
pad4 = body.newObject("PartDesign::Pad", "Pad003")
pad4.Profile = sketch4
pad4.Length = 1

# Sketch on XZ plane
sketch5 = body.newObject("Sketcher::SketchObject", "Sketch004")
sketch5.AttachmentSupport = (doc.getObject("XZ_Plane"), [""])
sketch5.MapMode = "FlatFace"
sketch5.AttachmentOffset = App.Placement(Vector(0, 0, 0.55), App.Rotation())
add_polygon(sketch5, [(-8.95, 4.65), (-8.6, 3.65), (-8.6, 4.65)])  # lines 0-2
sketch5.addConstraint([
    Sketcher.Constraint("Vertical", 1),
    Sketcher.Constraint("Horizontal", 2),
    Sketcher.Constraint("DistanceY", 1, 1, 1, 2, Q("1 mm")),
    Sketcher.Constraint("DistanceX", 2, 2, 2, 1, Q("0.35 mm")),
    Sketcher.Constraint("DistanceX", 0, 2, -1, 1, Q("8.6 mm")),
    Sketcher.Constraint("DistanceY", -1, 1, 0, 2, Q("3.65 mm")),
])
pocket1 = body.newObject("PartDesign::Pocket", "Pocket")
pocket1.Profile = sketch5
pocket1.Type = "UpToFirst"

# Sketch on XZ plane
sketch6 = body.newObject("Sketcher::SketchObject", "Sketch005")
sketch6.AttachmentSupport = (doc.getObject("XZ_Plane"), [""])
sketch6.MapMode = "FlatFace"
sketch6.AttachmentOffset = App.Placement(Vector(0, 0, 0.55), App.Rotation())
add_polygon(sketch6, [(11.55, 3.65), (11.9, 4.65), (11.55, 4.65)])  # lines 0-2
sketch6.addConstraint([
    Sketcher.Constraint("Horizontal", 1),
    Sketcher.Constraint("Vertical", 2),
    Sketcher.Constraint("DistanceY", 2, 2, 2, 1, Q("1 mm")),
    Sketcher.Constraint("DistanceX", 1, 2, 1, 1, Q("0.35 mm")),
    Sketcher.Constraint("DistanceX", -1, 1, 0, 2, Q("11.9 mm")),
    Sketcher.Constraint("DistanceY", -1, 1, 0, 2, Q("4.65 mm")),
])
pocket2 = body.newObject("PartDesign::Pocket", "Pocket001")
pocket2.Profile = sketch6
pocket2.Type = "UpToFirst"

# Sketch on XY plane
sketch7 = body.newObject("Sketcher::SketchObject", "Sketch006")
sketch7.AttachmentSupport = (doc.getObject("XY_Plane"), [""])
sketch7.MapMode = "FlatFace"
sketch7.AttachmentOffset = App.Placement(Vector(0, 0, 0.5), App.Rotation())
add_polygon(sketch7, [(-9.1, 17.2), (-7.75, 17.2), (-7.75, 18), (-10.45, 18), (-10.45, 16.4), (-9.1, 16.4)])  # lines 0-5
add_polygon(sketch7, [(13.4, 18), (10.7, 18), (10.7, 17.2), (12.05, 17.2), (12.05, 16.4), (13.4, 16.4)])  # lines 6-11
add_polygon(sketch7, [(12.05, -11.95), (12.05, -13.3), (13.4, -13.3), (13.4, -11.95)])  # lines 12-15
add_polygon(sketch7, [(-9.1, -13.3), (-9.1, -11.95), (-10.45, -11.95), (-10.45, -14.65), (-7.75, -14.65), (-7.75, -13.3)])  # lines 16-21
sketch7.addConstraint([
    Sketcher.Constraint("Horizontal", 0),
    Sketcher.Constraint("Vertical", 1),
    Sketcher.Constraint("Horizontal", 2),
    Sketcher.Constraint("Vertical", 3),
    Sketcher.Constraint("Horizontal", 4),
    Sketcher.Constraint("Vertical", 5),
    Sketcher.Constraint("Horizontal", 6),
    Sketcher.Constraint("Vertical", 7),
    Sketcher.Constraint("Horizontal", 8),
    Sketcher.Constraint("Vertical", 9),
    Sketcher.Constraint("Horizontal", 10),
    Sketcher.Constraint("Vertical", 11),
    Sketcher.Constraint("Vertical", 12),
    Sketcher.Constraint("Horizontal", 13),
    Sketcher.Constraint("Vertical", 14),
    Sketcher.Constraint("Horizontal", 15),
    Sketcher.Constraint("Vertical", 16),
    Sketcher.Constraint("Horizontal", 17),
    Sketcher.Constraint("Vertical", 18),
    Sketcher.Constraint("Horizontal", 19),
    Sketcher.Constraint("Vertical", 20),
    Sketcher.Constraint("Horizontal", 21),
    Sketcher.Constraint("Horizontal", 2, 2, 6, 2),
    Sketcher.Constraint("Horizontal", 5, 2, 7, 2),
    Sketcher.Constraint("Horizontal", 4, 2, 9, 2),
    Sketcher.Constraint("Horizontal", 15, 2, 16, 2),
    Sketcher.Constraint("Horizontal", 13, 2, 20, 2),
    Sketcher.Constraint("Vertical", 9, 2, 12, 2),
    Sketcher.Constraint("Vertical", 11, 2, 13, 2),
    Sketcher.Constraint("Vertical", 5, 2, 16, 2),
    Sketcher.Constraint("Vertical", 3, 2, 17, 2),
    Sketcher.Constraint("Vertical", 1, 2, 19, 2),
    Sketcher.Constraint("Equal", 0, 4),
    Sketcher.Constraint("Equal", 2, 6),
    Sketcher.Constraint("Equal", 4, 8),
    Sketcher.Constraint("Equal", 1, 5),
    Sketcher.Constraint("Equal", 21, 12),
    Sketcher.Constraint("Equal", 19, 18),
    Sketcher.Constraint("DistanceX", 2, 2, 2, 1, Q("2.7 mm")),
    Sketcher.Constraint("DistanceY", 1, 1, 1, 2, Q("0.8 mm")),
    Sketcher.Constraint("DistanceY", -1, 1, 1, 2, Q("18 mm")),
    Sketcher.Constraint("DistanceX", 4, 2, -1, 1, Q("9.1 mm")),
    Sketcher.Constraint("DistanceX", -1, 1, 6, 2, Q("10.7 mm")),
    Sketcher.Constraint("DistanceY", 12, 2, -1, 1, Q("13.3 mm")),
])
pad5 = body.newObject("PartDesign::Pad", "Pad004")
pad5.Profile = sketch7
pad5.Length = 3.15

doc.recompute()
